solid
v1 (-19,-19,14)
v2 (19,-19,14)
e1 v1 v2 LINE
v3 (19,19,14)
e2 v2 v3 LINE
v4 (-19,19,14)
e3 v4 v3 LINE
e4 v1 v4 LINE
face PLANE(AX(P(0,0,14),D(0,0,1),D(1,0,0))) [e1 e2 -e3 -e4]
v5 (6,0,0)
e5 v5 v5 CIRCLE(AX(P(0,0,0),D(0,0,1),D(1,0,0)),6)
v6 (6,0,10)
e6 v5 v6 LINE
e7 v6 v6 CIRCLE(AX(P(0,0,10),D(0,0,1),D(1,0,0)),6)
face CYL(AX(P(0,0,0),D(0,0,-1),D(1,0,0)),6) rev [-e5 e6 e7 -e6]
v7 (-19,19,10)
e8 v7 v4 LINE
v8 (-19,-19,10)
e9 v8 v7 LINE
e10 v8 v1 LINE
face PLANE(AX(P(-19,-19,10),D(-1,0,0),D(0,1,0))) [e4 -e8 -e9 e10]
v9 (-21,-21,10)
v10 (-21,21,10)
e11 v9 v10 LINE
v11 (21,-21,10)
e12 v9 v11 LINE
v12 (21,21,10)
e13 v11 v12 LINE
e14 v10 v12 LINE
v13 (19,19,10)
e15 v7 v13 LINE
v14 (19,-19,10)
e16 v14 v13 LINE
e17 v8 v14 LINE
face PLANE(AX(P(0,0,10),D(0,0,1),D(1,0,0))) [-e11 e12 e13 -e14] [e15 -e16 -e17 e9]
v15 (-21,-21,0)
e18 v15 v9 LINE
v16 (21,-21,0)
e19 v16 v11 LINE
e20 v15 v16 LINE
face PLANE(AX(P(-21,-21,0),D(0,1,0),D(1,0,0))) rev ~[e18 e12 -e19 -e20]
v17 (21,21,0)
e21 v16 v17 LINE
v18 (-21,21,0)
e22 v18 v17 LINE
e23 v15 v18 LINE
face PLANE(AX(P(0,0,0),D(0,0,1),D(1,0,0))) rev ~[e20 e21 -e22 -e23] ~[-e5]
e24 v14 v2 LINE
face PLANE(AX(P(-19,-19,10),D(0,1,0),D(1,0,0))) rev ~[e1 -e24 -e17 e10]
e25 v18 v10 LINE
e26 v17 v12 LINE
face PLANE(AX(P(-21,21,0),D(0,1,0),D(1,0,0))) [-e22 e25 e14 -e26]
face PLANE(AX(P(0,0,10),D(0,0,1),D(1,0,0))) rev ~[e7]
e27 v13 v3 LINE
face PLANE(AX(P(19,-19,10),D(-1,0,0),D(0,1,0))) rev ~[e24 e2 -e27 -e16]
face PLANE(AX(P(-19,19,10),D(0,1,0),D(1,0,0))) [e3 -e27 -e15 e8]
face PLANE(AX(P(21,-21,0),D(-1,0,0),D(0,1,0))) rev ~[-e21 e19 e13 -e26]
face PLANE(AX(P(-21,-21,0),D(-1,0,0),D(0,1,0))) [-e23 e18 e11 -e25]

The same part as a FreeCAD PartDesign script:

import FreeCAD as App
import Part
import Sketcher

V = App.Vector
Q = App.Units.Quantity


def add_polygon(sketch, points):
    """Adds a closed chain of lines whose ends are joined by coincident constraints."""
    first, n = sketch.GeometryCount, len(points)
    for a, b in zip(points, points[1:] + points[:1]):
        sketch.addGeometry(Part.LineSegment(App.Vector(*a, 0), App.Vector(*b, 0)), False)
    for i in range(n):
        sketch.addConstraint(Sketcher.Constraint("Coincident", first + i, 2, first + (i + 1) % n, 1))

doc = App.newDocument("Part")
body = doc.addObject("PartDesign::Body", "Body")

sketch1 = body.newObject("Sketcher::SketchObject", "Sketch")
sketch1.AttachmentSupport = (doc.getObject("XY_Plane"), [""])
sketch1.MapMode = "FlatFace"
add_polygon(sketch1, [(-21, 21), (-21, -21), (21, -21), (21, 21)])
sketch1.addGeometry(Part.Circle(V(0, 0, 0), V(0, 0, 1), 6), False)
sketch1.addConstraint(Sketcher.Constraint("Vertical", 0))
sketch1.addConstraint(Sketcher.Constraint("Horizontal", 1))
sketch1.addConstraint(Sketcher.Constraint("Vertical", 2))
sketch1.addConstraint(Sketcher.Constraint("Horizontal", 3))
sketch1.addConstraint(Sketcher.Constraint("Coincident", 4, 3, -1, 1))
sketch1.addConstraint(Sketcher.Constraint("Symmetric", 0, 2, 2, 2, -1, 1))
sketch1.addConstraint(Sketcher.Constraint("Equal", 3, 0))
sketch1.addConstraint(Sketcher.Constraint("Diameter", 4, Q("12 mm")))
sketch1.addConstraint(Sketcher.Constraint("DistanceX", 1, 1, 1, 2, Q("42 mm")))
pad1 = body.newObject("PartDesign::Pad", "Pad")
pad1.Profile = sketch1
pad1.Length = 10

sketch2 = body.newObject("Sketcher::SketchObject", "Sketch001")
sketch2.AttachmentSupport = (doc.getObject("XY_Plane"), [""])
sketch2.MapMode = "FlatFace"
sketch2.AttachmentOffset = App.Placement(V(0, 0, 10), App.Rotation())
add_polygon(sketch2, [(-19, 19), (-19, -19), (19, -19), (19, 19)])
sketch2.addConstraint(Sketcher.Constraint("Vertical", 0))
sketch2.addConstraint(Sketcher.Constraint("Horizontal", 1))
sketch2.addConstraint(Sketcher.Constraint("Vertical", 2))
sketch2.addConstraint(Sketcher.Constraint("Horizontal", 3))
sketch2.addConstraint(Sketcher.Constraint("Symmetric", 0, 2, 2, 2, -1, 1))
sketch2.addConstraint(Sketcher.Constraint("Equal", 3, 0))
sketch2.addConstraint(Sketcher.Constraint("DistanceX", 1, 1, 1, 2, Q("38 mm")))
pad2 = body.newObject("PartDesign::Pad", "Pad001")
pad2.Profile = sketch2
pad2.Length = 4

doc.recompute()
